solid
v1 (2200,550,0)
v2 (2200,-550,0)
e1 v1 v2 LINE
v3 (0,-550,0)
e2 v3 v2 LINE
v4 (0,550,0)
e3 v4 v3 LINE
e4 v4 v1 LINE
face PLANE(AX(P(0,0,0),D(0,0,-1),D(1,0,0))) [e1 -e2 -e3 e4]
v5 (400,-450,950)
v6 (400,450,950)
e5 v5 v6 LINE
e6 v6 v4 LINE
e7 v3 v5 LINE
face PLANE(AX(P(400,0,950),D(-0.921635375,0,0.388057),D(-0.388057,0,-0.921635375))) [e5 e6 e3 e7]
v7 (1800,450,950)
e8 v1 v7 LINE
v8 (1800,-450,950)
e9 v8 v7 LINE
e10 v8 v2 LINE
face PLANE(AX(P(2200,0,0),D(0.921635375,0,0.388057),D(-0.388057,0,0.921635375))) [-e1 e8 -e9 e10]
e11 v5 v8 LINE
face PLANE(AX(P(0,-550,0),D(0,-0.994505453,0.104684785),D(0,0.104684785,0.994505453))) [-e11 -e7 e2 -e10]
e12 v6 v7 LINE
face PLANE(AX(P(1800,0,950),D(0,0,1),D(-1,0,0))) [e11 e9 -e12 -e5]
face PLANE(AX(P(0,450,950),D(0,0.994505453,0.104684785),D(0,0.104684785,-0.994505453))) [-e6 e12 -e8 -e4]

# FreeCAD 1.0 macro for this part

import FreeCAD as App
import Part
import Sketcher


def add_polygon(sketch, points):
    """Adds a closed chain of lines whose ends are joined by coincident constraints."""
    first, n = sketch.GeometryCount, len(points)
    for a, b in zip(points, points[1:] + points[:1]):
        sketch.addGeometry(Part.LineSegment(App.Vector(*a, 0), App.Vector(*b, 0)), False)
    for i in range(n):
        sketch.addConstraint(Sketcher.Constraint("Coincident", first + i, 2, first + (i + 1) % n, 1))

doc = App.newDocument("Part")
body = doc.addObject("PartDesign::Body", "Body")

sketch1 = body.newObject("Sketcher::SketchObject", "Sketch")
sketch1.AttachmentSupport = (doc.getObject("XZ_Plane"), [""])
sketch1.MapMode = "FlatFace"
add_polygon(sketch1, [(400, 950), (0, 0), (2200, 0), (1800, 950)])
sketch1.addConstraint([
    Sketcher.Constraint("Horizontal", 1),
    Sketcher.Constraint("Horizontal", 3),
    Sketcher.Constraint("Coincident", 0, 2, -1, 1),
    Sketcher.Constraint("Equal", 0, 2),
    Sketcher.Constraint("DistanceX", 1, 1, 1, 2, 2200.0),
    Sketcher.Constraint("DistanceX", 3, 2, 3, 1, 1400.0),
    Sketcher.Constraint("DistanceY", -1, 1, 2, 2, 950.0),
])
pad1 = body.newObject("PartDesign::Pad", "Pad")
pad1.Profile = sketch1
pad1.Length = 1100
pad1.Midplane = True

sketch2 = body.newObject("Sketcher::SketchObject", "Sketch001")
sketch2.AttachmentSupport = (doc.getObject("YZ_Plane"), [""])
sketch2.MapMode = "FlatFace"
add_polygon(sketch2, [(-550, 950), (-550, 0), (-450, 950)])
add_polygon(sketch2, [(450, 950), (550, 0), (550, 950)])
sketch2.addConstraint([
    Sketcher.Constraint("Vertical", 0),
    Sketcher.Constraint("Horizontal", 2),
    Sketcher.Constraint("Vertical", 4),
    Sketcher.Constraint("Horizontal", 5),
    Sketcher.Constraint("Symmetric", 0, 2, 3, 2, -1, 1),
    Sketcher.Constraint("Symmetric", 1, 2, 5, 2, -2),
    Sketcher.Constraint("PointOnObject", 0, 2, -1),
    Sketcher.Constraint("DistanceX", 2, 2, 2, 1, 100.0),
    Sketcher.Constraint("DistanceY", 0, 2, 0, 1, 950.0),
    Sketcher.Constraint("DistanceX", 0, 2, -1, 1, 550.0),
])
pocket1 = body.newObject("PartDesign::Pocket", "Pocket")
pocket1.Profile = sketch2
pocket1.Type = "ThroughAll"
pocket1.Reversed = True

doc.recompute()
